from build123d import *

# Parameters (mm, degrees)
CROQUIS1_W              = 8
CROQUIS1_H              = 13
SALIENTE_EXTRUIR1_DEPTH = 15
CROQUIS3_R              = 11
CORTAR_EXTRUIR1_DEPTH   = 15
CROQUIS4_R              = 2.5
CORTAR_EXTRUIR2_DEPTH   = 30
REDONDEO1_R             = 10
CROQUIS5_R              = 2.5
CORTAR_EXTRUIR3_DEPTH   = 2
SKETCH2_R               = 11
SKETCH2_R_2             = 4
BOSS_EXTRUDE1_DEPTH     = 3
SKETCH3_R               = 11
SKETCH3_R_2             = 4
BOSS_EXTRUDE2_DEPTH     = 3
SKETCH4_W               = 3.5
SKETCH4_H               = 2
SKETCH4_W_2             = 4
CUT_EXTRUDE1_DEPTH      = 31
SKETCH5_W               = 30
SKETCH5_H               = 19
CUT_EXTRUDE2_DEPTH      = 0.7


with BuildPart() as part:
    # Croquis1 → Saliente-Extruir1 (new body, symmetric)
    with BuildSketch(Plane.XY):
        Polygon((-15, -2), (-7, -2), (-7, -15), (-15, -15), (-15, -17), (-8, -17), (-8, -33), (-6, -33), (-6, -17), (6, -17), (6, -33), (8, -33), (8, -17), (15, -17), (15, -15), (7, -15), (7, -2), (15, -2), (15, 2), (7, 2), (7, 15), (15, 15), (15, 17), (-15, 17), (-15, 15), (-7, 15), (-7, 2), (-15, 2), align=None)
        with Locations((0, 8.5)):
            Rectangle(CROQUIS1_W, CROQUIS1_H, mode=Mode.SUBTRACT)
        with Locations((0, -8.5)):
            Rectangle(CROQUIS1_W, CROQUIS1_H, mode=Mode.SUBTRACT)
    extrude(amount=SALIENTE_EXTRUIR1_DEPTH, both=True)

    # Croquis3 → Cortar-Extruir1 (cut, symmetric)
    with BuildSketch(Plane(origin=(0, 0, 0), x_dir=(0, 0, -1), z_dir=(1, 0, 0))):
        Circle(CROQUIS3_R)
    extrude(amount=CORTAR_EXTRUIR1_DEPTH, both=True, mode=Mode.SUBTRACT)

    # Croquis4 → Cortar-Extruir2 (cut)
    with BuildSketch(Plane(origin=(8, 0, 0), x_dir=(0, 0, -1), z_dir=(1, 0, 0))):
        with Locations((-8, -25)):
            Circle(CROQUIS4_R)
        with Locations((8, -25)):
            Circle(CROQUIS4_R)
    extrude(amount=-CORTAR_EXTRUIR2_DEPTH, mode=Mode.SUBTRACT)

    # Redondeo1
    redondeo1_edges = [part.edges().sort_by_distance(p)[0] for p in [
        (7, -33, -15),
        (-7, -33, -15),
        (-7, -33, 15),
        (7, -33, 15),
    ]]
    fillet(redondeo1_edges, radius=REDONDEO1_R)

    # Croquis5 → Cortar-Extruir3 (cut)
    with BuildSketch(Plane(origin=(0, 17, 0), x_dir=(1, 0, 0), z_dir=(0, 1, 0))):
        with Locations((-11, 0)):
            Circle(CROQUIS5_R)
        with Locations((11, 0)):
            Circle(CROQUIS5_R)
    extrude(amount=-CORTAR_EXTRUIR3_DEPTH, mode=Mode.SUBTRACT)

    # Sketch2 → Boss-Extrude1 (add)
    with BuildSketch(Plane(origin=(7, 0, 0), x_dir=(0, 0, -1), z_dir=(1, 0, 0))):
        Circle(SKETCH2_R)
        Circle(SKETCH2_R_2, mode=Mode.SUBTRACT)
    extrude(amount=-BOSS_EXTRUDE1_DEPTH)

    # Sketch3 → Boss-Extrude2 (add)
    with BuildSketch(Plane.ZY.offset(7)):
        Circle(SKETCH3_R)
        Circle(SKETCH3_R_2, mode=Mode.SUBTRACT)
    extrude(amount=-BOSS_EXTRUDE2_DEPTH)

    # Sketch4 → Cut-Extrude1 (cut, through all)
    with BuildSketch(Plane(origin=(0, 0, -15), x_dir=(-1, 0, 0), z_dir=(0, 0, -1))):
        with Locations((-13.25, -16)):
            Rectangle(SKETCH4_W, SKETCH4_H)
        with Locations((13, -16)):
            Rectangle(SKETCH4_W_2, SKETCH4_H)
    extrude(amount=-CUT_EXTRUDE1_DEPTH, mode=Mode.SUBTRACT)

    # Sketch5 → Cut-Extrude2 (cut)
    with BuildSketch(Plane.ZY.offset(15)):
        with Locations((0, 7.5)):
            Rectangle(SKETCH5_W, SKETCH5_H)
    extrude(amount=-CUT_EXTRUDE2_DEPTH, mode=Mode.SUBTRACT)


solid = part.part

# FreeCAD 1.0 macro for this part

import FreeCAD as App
import Part
import Sketcher

V = App.Vector
Q = App.Units.Quantity


def edges_at(feature, points):
    """Names of the edges that pass closest to the given points."""
    edges = feature.Shape.Edges
    near = lambda p: min(range(len(edges)), key=lambda i: edges[i].distToShape(Part.Vertex(*p))[0])
    return sorted({f"Edge{near(p) + 1}" for p in points})

doc = App.newDocument("Part")
body = doc.addObject("PartDesign::Body", "Body")

# Sketch on XY plane
sketch1 = doc.addObject("Sketcher::SketchObject", "Sketch")
body.addObject(sketch1)
sketch1.AttachmentSupport = (doc.XY_Plane, [""])
sketch1.MapMode = "FlatFace"
sketch1.addGeometry([
    Part.LineSegment(V(-15, -2, 0), V(-7, -2, 0)),  # 0
    Part.LineSegment(V(-7, -2, 0), V(-7, -15, 0)),  # 1
    Part.LineSegment(V(-7, -15, 0), V(-15, -15, 0)),  # 2
    Part.LineSegment(V(-15, -15, 0), V(-15, -17, 0)),  # 3
    Part.LineSegment(V(-15, -17, 0), V(-8, -17, 0)),  # 4
    Part.LineSegment(V(-8, -17, 0), V(-8, -33, 0)),  # 5
    Part.LineSegment(V(-8, -33, 0), V(-6, -33, 0)),  # 6
    Part.LineSegment(V(-6, -33, 0), V(-6, -17, 0)),  # 7
    Part.LineSegment(V(-6, -17, 0), V(6, -17, 0)),  # 8
    Part.LineSegment(V(6, -17, 0), V(6, -33, 0)),  # 9
    Part.LineSegment(V(6, -33, 0), V(8, -33, 0)),  # 10
    Part.LineSegment(V(8, -33, 0), V(8, -17, 0)),  # 11
    Part.LineSegment(V(8, -17, 0), V(15, -17, 0)),  # 12
    Part.LineSegment(V(15, -17, 0), V(15, -15, 0)),  # 13
    Part.LineSegment(V(15, -15, 0), V(7, -15, 0)),  # 14
    Part.LineSegment(V(7, -15, 0), V(7, -2, 0)),  # 15
    Part.LineSegment(V(7, -2, 0), V(15, -2, 0)),  # 16
    Part.LineSegment(V(15, -2, 0), V(15, 2, 0)),  # 17
    Part.LineSegment(V(15, 2, 0), V(7, 2, 0)),  # 18
    Part.LineSegment(V(7, 2, 0), V(7, 15, 0)),  # 19
    Part.LineSegment(V(7, 15, 0), V(15, 15, 0)),  # 20
    Part.LineSegment(V(15, 15, 0), V(15, 17, 0)),  # 21
    Part.LineSegment(V(15, 17, 0), V(-15, 17, 0)),  # 22
    Part.LineSegment(V(-15, 17, 0), V(-15, 15, 0)),  # 23
    Part.LineSegment(V(-15, 15, 0), V(-7, 15, 0)),  # 24
    Part.LineSegment(V(-7, 15, 0), V(-7, 2, 0)),  # 25
    Part.LineSegment(V(-7, 2, 0), V(-15, 2, 0)),  # 26
    Part.LineSegment(V(-15, 2, 0), V(-15, -2, 0)),  # 27
    Part.LineSegment(V(4, -15, 0), V(-4, -15, 0)),  # 28
    Part.LineSegment(V(-4, -15, 0), V(-4, -2, 0)),  # 29
    Part.LineSegment(V(-4, -2, 0), V(4, -2, 0)),  # 30
    Part.LineSegment(V(4, -2, 0), V(4, -15, 0)),  # 31
    Part.LineSegment(V(4, 2, 0), V(-4, 2, 0)),  # 32
    Part.LineSegment(V(-4, 2, 0), V(-4, 15, 0)),  # 33
    Part.LineSegment(V(-4, 15, 0), V(4, 15, 0)),  # 34
    Part.LineSegment(V(4, 15, 0), V(4, 2, 0)),  # 35
], False)
sketch1.addConstraint([
    Sketcher.Constraint("Coincident", 0, 2, 1, 1),
    Sketcher.Constraint("Coincident", 1, 2, 2, 1),
    Sketcher.Constraint("Coincident", 2, 2, 3, 1),
    Sketcher.Constraint("Coincident", 3, 2, 4, 1),
    Sketcher.Constraint("Coincident", 4, 2, 5, 1),
    Sketcher.Constraint("Coincident", 5, 2, 6, 1),
    Sketcher.Constraint("Coincident", 6, 2, 7, 1),
    Sketcher.Constraint("Coincident", 7, 2, 8, 1),
    Sketcher.Constraint("Coincident", 8, 2, 9, 1),
    Sketcher.Constraint("Coincident", 9, 2, 10, 1),
    Sketcher.Constraint("Coincident", 10, 2, 11, 1),
    Sketcher.Constraint("Coincident", 11, 2, 12, 1),
    Sketcher.Constraint("Coincident", 12, 2, 13, 1),
    Sketcher.Constraint("Coincident", 13, 2, 14, 1),
    Sketcher.Constraint("Coincident", 14, 2, 15, 1),
    Sketcher.Constraint("Coincident", 15, 2, 16, 1),
    Sketcher.Constraint("Coincident", 16, 2, 17, 1),
    Sketcher.Constraint("Coincident", 17, 2, 18, 1),
    Sketcher.Constraint("Coincident", 18, 2, 19, 1),
    Sketcher.Constraint("Coincident", 19, 2, 20, 1),
    Sketcher.Constraint("Coincident", 20, 2, 21, 1),
    Sketcher.Constraint("Coincident", 21, 2, 22, 1),
    Sketcher.Constraint("Coincident", 22, 2, 23, 1),
    Sketcher.Constraint("Coincident", 23, 2, 24, 1),
    Sketcher.Constraint("Coincident", 24, 2, 25, 1),
    Sketcher.Constraint("Coincident", 25, 2, 26, 1),
    Sketcher.Constraint("Coincident", 26, 2, 27, 1),
    Sketcher.Constraint("Coincident", 27, 2, 0, 1),
    Sketcher.Constraint("Coincident", 28, 2, 29, 1),
    Sketcher.Constraint("Coincident", 29, 2, 30, 1),
    Sketcher.Constraint("Coincident", 30, 2, 31, 1),
    Sketcher.Constraint("Coincident", 31, 2, 28, 1),
    Sketcher.Constraint("Coincident", 32, 2, 33, 1),
    Sketcher.Constraint("Coincident", 33, 2, 34, 1),
    Sketcher.Constraint("Coincident", 34, 2, 35, 1),
    Sketcher.Constraint("Coincident", 35, 2, 32, 1),
    Sketcher.Constraint("Horizontal", 0),
    Sketcher.Constraint("Vertical", 1),
    Sketcher.Constraint("Horizontal", 2),
    Sketcher.Constraint("Vertical", 3),
    Sketcher.Constraint("Horizontal", 4),
    Sketcher.Constraint("Vertical", 5),
    Sketcher.Constraint("Horizontal", 6),
    Sketcher.Constraint("Vertical", 7),
    Sketcher.Constraint("Horizontal", 8),
    Sketcher.Constraint("Vertical", 9),
    Sketcher.Constraint("Horizontal", 10),
    Sketcher.Constraint("Vertical", 11),
    Sketcher.Constraint("Horizontal", 12),
    Sketcher.Constraint("Vertical", 13),
    Sketcher.Constraint("Horizontal", 14),
    Sketcher.Constraint("Vertical", 15),
    Sketcher.Constraint("Horizontal", 16),
    Sketcher.Constraint("Vertical", 17),
    Sketcher.Constraint("Horizontal", 18),
    Sketcher.Constraint("Vertical", 19),
    Sketcher.Constraint("Horizontal", 20),
    Sketcher.Constraint("Vertical", 21),
    Sketcher.Constraint("Horizontal", 22),
    Sketcher.Constraint("Vertical", 23),
    Sketcher.Constraint("Horizontal", 24),
    Sketcher.Constraint("Vertical", 25),
    Sketcher.Constraint("Horizontal", 26),
    Sketcher.Constraint("Vertical", 27),
    Sketcher.Constraint("Horizontal", 28),
    Sketcher.Constraint("Vertical", 29),
    Sketcher.Constraint("Horizontal", 30),
    Sketcher.Constraint("Vertical", 31),
    Sketcher.Constraint("Horizontal", 32),
    Sketcher.Constraint("Vertical", 33),
    Sketcher.Constraint("Horizontal", 34),
    Sketcher.Constraint("Vertical", 35),
    Sketcher.Constraint("Symmetric", 0, 2, 18, 2, -1, 1),
    Sketcher.Constraint("Symmetric", 2, 2, 20, 2, -1, 1),
    Sketcher.Constraint("Symmetric", 12, 2, 22, 2, -1, 1),
    Sketcher.Constraint("Symmetric", 14, 2, 24, 2, -1, 1),
    Sketcher.Constraint("Symmetric", 16, 2, 26, 2, -1, 1),
    Sketcher.Constraint("Symmetric", 30, 2, 32, 2, -1, 1),
    Sketcher.Constraint("Symmetric", 28, 2, 34, 2, -1, 1),
    Sketcher.Constraint("Symmetric", 6, 2, 9, 2, -2),
    Sketcher.Constraint("Symmetric", 4, 2, 11, 2, -2),
    Sketcher.Constraint("Symmetric", 2, 2, 13, 2, -2),
    Sketcher.Constraint("Symmetric", 0, 2, 15, 2, -2),
    Sketcher.Constraint("Horizontal", 4, 2, 7, 2),
    Sketcher.Constraint("Horizontal", 14, 2, 28, 2),
    Sketcher.Constraint("Horizontal", 27, 2, 29, 2),
    Sketcher.Constraint("Vertical", 13, 2, 16, 2),
    Sketcher.Constraint("Vertical", 29, 2, 32, 2),
    Sketcher.Constraint("Equal", 26, 28),
    Sketcher.Constraint("Equal", 10, 3),
    Sketcher.Constraint("DistanceX", 0, 1, 0, 2, Q("8 mm")),
    Sketcher.Constraint("DistanceX", 4, 1, 4, 2, Q("7 mm")),
    Sketcher.Constraint("DistanceX", 6, 1, 6, 2, Q("2 mm")),
    Sketcher.Constraint("DistanceX", 8, 1, 8, 2, Q("12 mm")),
    Sketcher.Constraint("DistanceY", 1, 2, 1, 1, Q("13 mm")),
    Sketcher.Constraint("DistanceY", 5, 2, 5, 1, Q("16 mm")),
    Sketcher.Constraint("DistanceY", 17, 1, 17, 2, Q("4 mm")),
])
pad1 = doc.addObject("PartDesign::Pad", "Pad")
body.addObject(pad1)
pad1.Profile = sketch1
pad1.Length = 30
pad1.Midplane = True

# Sketch on YZ plane
sketch2 = doc.addObject("Sketcher::SketchObject", "Sketch001")
body.addObject(sketch2)
sketch2.AttachmentSupport = (doc.YZ_Plane, [""])
sketch2.MapMode = "FlatFace"
sketch2.addGeometry(Part.Circle(V(0, 0, 0), V(0, 0, 1), 11), False)
sketch2.addConstraint([
    Sketcher.Constraint("Coincident", 0, 3, -1, 1),
    Sketcher.Constraint("Diameter", 0, Q("22 mm")),
])
pocket1 = doc.addObject("PartDesign::Pocket", "Pocket")
body.addObject(pocket1)
pocket1.Profile = sketch2
pocket1.Length = 30
pocket1.Midplane = True

# Sketch on YZ plane
sketch3 = doc.addObject("Sketcher::SketchObject", "Sketch002")
body.addObject(sketch3)
sketch3.AttachmentSupport = (doc.YZ_Plane, [""])
sketch3.MapMode = "FlatFace"
sketch3.AttachmentOffset = App.Placement(V(0, 0, 8), App.Rotation())
sketch3.addGeometry([
    Part.Circle(V(-25, 8, 0), V(0, 0, 1), 2.5),
    Part.Circle(V(-25, -8, 0), V(0, 0, 1), 2.5),
], False)
sketch3.addConstraint([
    Sketcher.Constraint("Equal", 0, 1),
    Sketcher.Constraint("Symmetric", 0, 3, 1, 3, -1),
    Sketcher.Constraint("Diameter", 0, Q("5 mm")),
    Sketcher.Constraint("DistanceX", 0, 3, -1, 1, Q("25 mm")),
    Sketcher.Constraint("DistanceY", -1, 1, 0, 3, Q("8 mm")),
])
pocket2 = doc.addObject("PartDesign::Pocket", "Pocket001")
body.addObject(pocket2)
pocket2.Profile = sketch3
pocket2.Length = 30
doc.recompute()

fillet = doc.addObject("PartDesign::Fillet", "Fillet")
body.addObject(fillet)
fillet.Base = (pocket2, edges_at(pocket2, [
    (7, -33, -15),
    (-7, -33, -15),
    (-7, -33, 15),
    (7, -33, 15),
]))
fillet.Radius = 10

# Sketch on XZ plane
sketch4 = doc.addObject("Sketcher::SketchObject", "Sketch003")
body.addObject(sketch4)
sketch4.AttachmentSupport = (doc.XZ_Plane, [""])
sketch4.MapMode = "FlatFace"
sketch4.AttachmentOffset = App.Placement(V(0, 0, -17), App.Rotation())
sketch4.addGeometry([
    Part.Circle(V(-11, 0, 0), V(0, 0, 1), 2.5),
    Part.Circle(V(11, 0, 0), V(0, 0, 1), 2.5),
], False)
sketch4.addConstraint([
    Sketcher.Constraint("Equal", 0, 1),
    Sketcher.Constraint("Symmetric", 0, 3, 1, 3, -1, 1),
    Sketcher.Constraint("PointOnObject", 0, 3, -1),
    Sketcher.Constraint("Diameter", 0, Q("5 mm")),
    Sketcher.Constraint("DistanceX", 0, 3, -1, 1, Q("11 mm")),
])
pocket3 = doc.addObject("PartDesign::Pocket", "Pocket002")
body.addObject(pocket3)
pocket3.Profile = sketch4
pocket3.Length = 2
pocket3.Reversed = True

# Sketch on YZ plane
sketch5 = doc.addObject("Sketcher::SketchObject", "Sketch004")
body.addObject(sketch5)
sketch5.AttachmentSupport = (doc.YZ_Plane, [""])
sketch5.MapMode = "FlatFace"
sketch5.AttachmentOffset = App.Placement(V(0, 0, 7), App.Rotation())
sketch5.addGeometry([
    Part.Circle(V(0, 0, 0), V(0, 0, 1), 11),
    Part.Circle(V(0, 0, 0), V(0, 0, 1), 4),
], False)
sketch5.addConstraint([
    Sketcher.Constraint("Coincident", 0, 3, -1, 1),
    Sketcher.Constraint("Coincident", 1, 3, -1, 1),
    Sketcher.Constraint("Diameter", 0, Q("22 mm")),
    Sketcher.Constraint("Diameter", 1, Q("8 mm")),
])
pad2 = doc.addObject("PartDesign::Pad", "Pad001")
body.addObject(pad2)
pad2.Profile = sketch5
pad2.Length = 3
pad2.Reversed = True

# Sketch on YZ plane
sketch6 = doc.addObject("Sketcher::SketchObject", "Sketch005")
body.addObject(sketch6)
sketch6.AttachmentSupport = (doc.YZ_Plane, [""])
sketch6.MapMode = "FlatFace"
sketch6.AttachmentOffset = App.Placement(V(0, 0, -7), App.Rotation())
sketch6.addGeometry([
    Part.Circle(V(0, 0, 0), V(0, 0, 1), 11),
    Part.Circle(V(0, 0, 0), V(0, 0, 1), 4),
], False)
sketch6.addConstraint([
    Sketcher.Constraint("Coincident", 0, 3, -1, 1),
    Sketcher.Constraint("Coincident", 1, 3, -1, 1),
    Sketcher.Constraint("Diameter", 0, Q("22 mm")),
    Sketcher.Constraint("Diameter", 1, Q("8 mm")),
])
pad3 = doc.addObject("PartDesign::Pad", "Pad002")
body.addObject(pad3)
pad3.Profile = sketch6
pad3.Length = 3

# Sketch on XY plane
sketch7 = doc.addObject("Sketcher::SketchObject", "Sketch006")
body.addObject(sketch7)
sketch7.AttachmentSupport = (doc.XY_Plane, [""])
sketch7.MapMode = "FlatFace"
sketch7.AttachmentOffset = App.Placement(V(0, 0, -15), App.Rotation())
sketch7.addGeometry([
    Part.LineSegment(V(15, -15, 0), V(15, -17, 0)),  # 0
    Part.LineSegment(V(15, -17, 0), V(11.5, -17, 0)),  # 1
    Part.LineSegment(V(11.5, -17, 0), V(11.5, -15, 0)),  # 2
    Part.LineSegment(V(11.5, -15, 0), V(15, -15, 0)),  # 3
    Part.LineSegment(V(-11, -15, 0), V(-11, -17, 0)),  # 4
    Part.LineSegment(V(-11, -17, 0), V(-15, -17, 0)),  # 5
    Part.LineSegment(V(-15, -17, 0), V(-15, -15, 0)),  # 6
    Part.LineSegment(V(-15, -15, 0), V(-11, -15, 0)),  # 7
], False)
sketch7.addConstraint([
    Sketcher.Constraint("Coincident", 0, 2, 1, 1),
    Sketcher.Constraint("Coincident", 1, 2, 2, 1),
    Sketcher.Constraint("Coincident", 2, 2, 3, 1),
    Sketcher.Constraint("Coincident", 3, 2, 0, 1),
    Sketcher.Constraint("Coincident", 4, 2, 5, 1),
    Sketcher.Constraint("Coincident", 5, 2, 6, 1),
    Sketcher.Constraint("Coincident", 6, 2, 7, 1),
    Sketcher.Constraint("Coincident", 7, 2, 4, 1),
    Sketcher.Constraint("Vertical", 0),
    Sketcher.Constraint("Horizontal", 1),
    Sketcher.Constraint("Vertical", 2),
    Sketcher.Constraint("Horizontal", 3),
    Sketcher.Constraint("Vertical", 4),
    Sketcher.Constraint("Horizontal", 5),
    Sketcher.Constraint("Vertical", 6),
    Sketcher.Constraint("Horizontal", 7),
    Sketcher.Constraint("Symmetric", 0, 2, 5, 2, -2),
    Sketcher.Constraint("Horizontal", 3, 2, 6, 2),
    Sketcher.Constraint("DistanceX", 5, 2, 5, 1, Q("4 mm")),
    Sketcher.Constraint("DistanceY", 0, 2, 0, 1, Q("2 mm")),
    Sketcher.Constraint("DistanceX", 1, 2, 1, 1, Q("3.5 mm")),
    Sketcher.Constraint("DistanceX", -1, 1, 0, 2, Q("15 mm")),
    Sketcher.Constraint("DistanceY", 0, 2, -1, 1, Q("17 mm")),
])
pocket4 = doc.addObject("PartDesign::Pocket", "Pocket003")
body.addObject(pocket4)
pocket4.Profile = sketch7
pocket4.Type = "ThroughAll"
pocket4.Reversed = True

# Sketch on YZ plane
sketch8 = doc.addObject("Sketcher::SketchObject", "Sketch007")
body.addObject(sketch8)
sketch8.AttachmentSupport = (doc.YZ_Plane, [""])
sketch8.MapMode = "FlatFace"
sketch8.AttachmentOffset = App.Placement(V(0, 0, -15), App.Rotation())
sketch8.addGeometry([
    Part.LineSegment(V(17, -15, 0), V(-2, -15, 0)),
    Part.LineSegment(V(-2, -15, 0), V(-2, 15, 0)),
    Part.LineSegment(V(-2, 15, 0), V(17, 15, 0)),
    Part.LineSegment(V(17, 15, 0), V(17, -15, 0)),
], False)
sketch8.addConstraint([
    Sketcher.Constraint("Coincident", 0, 2, 1, 1),
    Sketcher.Constraint("Coincident", 1, 2, 2, 1),
    Sketcher.Constraint("Coincident", 2, 2, 3, 1),
    Sketcher.Constraint("Coincident", 3, 2, 0, 1),
    Sketcher.Constraint("Horizontal", 0),
    Sketcher.Constraint("Vertical", 1),
    Sketcher.Constraint("Horizontal", 2),
    Sketcher.Constraint("Vertical", 3),
    Sketcher.Constraint("DistanceX", 0, 2, 0, 1, Q("19 mm")),
    Sketcher.Constraint("DistanceY", 1, 1, 1, 2, Q("30 mm")),
    Sketcher.Constraint("DistanceX", 0, 2, -1, 1, Q("2 mm")),
    Sketcher.Constraint("DistanceY", 0, 2, -1, 1, Q("15 mm")),
])
pocket5 = doc.addObject("PartDesign::Pocket", "Pocket004")
body.addObject(pocket5)
pocket5.Profile = sketch8
pocket5.Length = 0.7
pocket5.Reversed = True

doc.recompute()
